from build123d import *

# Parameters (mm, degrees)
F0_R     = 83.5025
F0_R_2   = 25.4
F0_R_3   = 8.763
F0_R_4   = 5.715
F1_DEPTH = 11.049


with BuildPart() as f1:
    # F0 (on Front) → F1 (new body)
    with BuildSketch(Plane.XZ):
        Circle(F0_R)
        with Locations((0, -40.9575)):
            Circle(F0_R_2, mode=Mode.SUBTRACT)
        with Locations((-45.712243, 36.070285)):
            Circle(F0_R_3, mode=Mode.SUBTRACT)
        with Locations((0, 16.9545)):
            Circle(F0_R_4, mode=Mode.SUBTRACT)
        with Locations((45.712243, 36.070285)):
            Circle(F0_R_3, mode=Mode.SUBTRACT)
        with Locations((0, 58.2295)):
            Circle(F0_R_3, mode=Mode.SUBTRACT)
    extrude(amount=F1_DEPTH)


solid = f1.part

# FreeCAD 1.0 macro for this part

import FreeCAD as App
import Part
import Sketcher
from FreeCAD import Vector
Q = App.Units.Quantity

doc = App.newDocument("Part")
body = doc.addObject("PartDesign::Body", "Body")

sketch1 = doc.addObject("Sketcher::SketchObject", "Sketch")
body.addObject(sketch1)
sketch1.AttachmentSupport = (doc.XZ_Plane, [""])
sketch1.MapMode = "FlatFace"
sketch1.addGeometry([
    Part.Circle(Vector(0, 0, 0), Vector(0, 0, 1), 84),
    Part.Circle(Vector(0, -41, 0), Vector(0, 0, 1), 25),
    Part.Circle(Vector(-46, 36, 0), Vector(0, 0, 1), 9),
    Part.Circle(Vector(0, 58, 0), Vector(0, 0, 1), 9),
    Part.Circle(Vector(0, 17, 0), Vector(0, 0, 1), 6),
    Part.Circle(Vector(46, 36, 0), Vector(0, 0, 1), 9),
], False)
sketch1.addConstraint([
    Sketcher.Constraint("Coincident", 0, 3, -1, 1),
    Sketcher.Constraint("Equal", 2, 3),
    Sketcher.Constraint("Equal", 3, 5),
    Sketcher.Constraint("Symmetric", 2, 3, 5, 3, -2),
    Sketcher.Constraint("PointOnObject", 1, 3, -2),
    Sketcher.Constraint("PointOnObject", 3, 3, -2),
    Sketcher.Constraint("PointOnObject", 4, 3, -2),
    Sketcher.Constraint("Diameter", 1, Q("2 in")),
    Sketcher.Constraint("Diameter", 2, Q("0.69 in")),
    Sketcher.Constraint("Diameter", 4, Q("0.45 in")),
    Sketcher.Constraint("Diameter", 0, Q("6.575 in")),
    Sketcher.Constraint("DistanceY", 1, 3, 4, 3, Q("2.28 in")),
    Sketcher.Constraint("DistanceY", 1, 3, 3, 3, Q("3.905 in")),
    Sketcher.Constraint("DistanceY", 1, 3, -1, 1, Q("1.6125 in")),
    Sketcher.Constraint("DistanceX", 2, 3, -1, 1, Q("45.712243 mm")),
    Sketcher.Constraint("DistanceY", -1, 1, 2, 3, Q("36.070285 mm")),
])
pad1 = doc.addObject("PartDesign::Pad", "Pad")
body.addObject(pad1)
pad1.Profile = sketch1
pad1.Length = Q("0.435 in")

doc.recompute()
